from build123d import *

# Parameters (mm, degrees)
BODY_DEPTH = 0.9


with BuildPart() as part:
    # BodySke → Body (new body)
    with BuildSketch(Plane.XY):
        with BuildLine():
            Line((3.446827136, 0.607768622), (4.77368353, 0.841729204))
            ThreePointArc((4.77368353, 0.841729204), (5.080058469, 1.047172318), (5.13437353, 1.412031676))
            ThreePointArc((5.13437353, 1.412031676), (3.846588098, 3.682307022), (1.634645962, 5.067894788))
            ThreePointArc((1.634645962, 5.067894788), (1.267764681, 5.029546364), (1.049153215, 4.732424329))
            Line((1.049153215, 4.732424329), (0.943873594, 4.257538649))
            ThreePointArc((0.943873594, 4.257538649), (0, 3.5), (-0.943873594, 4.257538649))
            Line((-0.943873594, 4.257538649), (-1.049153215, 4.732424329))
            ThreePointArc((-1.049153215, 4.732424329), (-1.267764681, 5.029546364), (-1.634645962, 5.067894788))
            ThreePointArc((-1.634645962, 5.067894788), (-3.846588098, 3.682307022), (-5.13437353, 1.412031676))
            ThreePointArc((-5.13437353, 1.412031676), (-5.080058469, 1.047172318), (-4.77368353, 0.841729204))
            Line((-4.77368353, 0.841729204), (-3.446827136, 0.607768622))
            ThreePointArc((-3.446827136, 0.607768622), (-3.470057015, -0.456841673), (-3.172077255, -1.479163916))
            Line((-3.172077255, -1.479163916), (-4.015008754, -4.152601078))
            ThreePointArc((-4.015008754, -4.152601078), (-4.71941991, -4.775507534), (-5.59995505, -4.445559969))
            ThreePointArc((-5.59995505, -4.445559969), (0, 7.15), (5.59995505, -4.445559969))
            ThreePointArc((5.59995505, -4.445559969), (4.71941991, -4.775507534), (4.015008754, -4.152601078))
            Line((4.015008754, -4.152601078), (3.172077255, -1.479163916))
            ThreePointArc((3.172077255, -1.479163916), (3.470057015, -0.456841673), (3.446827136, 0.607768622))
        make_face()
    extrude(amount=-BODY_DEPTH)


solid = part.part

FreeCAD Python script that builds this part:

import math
import FreeCAD as App
import Part
import Sketcher

V = App.Vector
Q = App.Units.Quantity

doc = App.newDocument("Part")
body = doc.addObject("PartDesign::Body", "Body")

# Sketch on XY plane
sketch1 = body.newObject("Sketcher::SketchObject", "Sketch")
sketch1.AttachmentSupport = (doc.getObject("XY_Plane"), [""])
sketch1.MapMode = "FlatFace"
sketch1.addGeometry(Part.LineSegment(V(4.773684, 0.841729, 0), V(3.446827, 0.607769, 0)), False)
sketch1.addGeometry(Part.ArcOfCircle(Part.Circle(V(0, 0, 0), V(0, 0, 1), 3.5), math.radians(-25), math.radians(10)), False)
sketch1.addGeometry(Part.LineSegment(V(3.172077, -1.479164, 0), V(4.015009, -4.152601, 0)), False)
sketch1.addGeometry(Part.ArcOfCircle(Part.Circle(V(4.885275, -3.878207, 0), V(0, 0, 1), 0.9125), math.radians(-162.5), math.radians(-38.444527)), False)
sketch1.addGeometry(Part.ArcOfCircle(Part.Circle(V(0, 0, 0), V(0, 0, 1), 7.15), math.radians(-38.444527), math.radians(218.444527)), False)
sketch1.addGeometry(Part.ArcOfCircle(Part.Circle(V(-4.885275, -3.878207, 0), V(0, 0, 1), 0.9125), math.radians(-141.555473), math.radians(-17.5)), False)
sketch1.addGeometry(Part.LineSegment(V(-4.015009, -4.152601, 0), V(-3.172077, -1.479164, 0)), False)
sketch1.addGeometry(Part.ArcOfCircle(Part.Circle(V(0, 0, 0), V(0, 0, 1), 3.5), math.radians(170), math.radians(205)), False)
sketch1.addGeometry(Part.LineSegment(V(-3.446827, 0.607769, 0), V(-4.773684, 0.841729, 0)), False)
sketch1.addGeometry(Part.ArcOfCircle(Part.Circle(V(-4.694457, 1.291048, 0), V(0, 0, 1), 0.45625), math.radians(164.62293), math.radians(260)), False)
sketch1.addGeometry(Part.ArcOfCircle(Part.Circle(V(0, 0, 0), V(0, 0, 1), 5.325), math.radians(107.87707), math.radians(164.62293)), False)
sketch1.addGeometry(Part.ArcOfCircle(Part.Circle(V(-1.494588, 4.633674, 0), V(0, 0, 1), 0.45625), math.radians(12.5), math.radians(107.87707)), False)
sketch1.addGeometry(Part.LineSegment(V(-1.049153, 4.732424, 0), V(-0.943874, 4.257539, 0)), False)
sketch1.addGeometry(Part.ArcOfCircle(Part.Circle(V(0, 4.46679, 0), V(0, 0, 1), 0.96679), math.radians(-167.5), math.radians(-12.5)), False)
sketch1.addGeometry(Part.LineSegment(V(0.943874, 4.257539, 0), V(1.049153, 4.732424, 0)), False)
sketch1.addGeometry(Part.ArcOfCircle(Part.Circle(V(1.494588, 4.633674, 0), V(0, 0, 1), 0.45625), math.radians(72.12293), math.radians(167.5)), False)
sketch1.addGeometry(Part.ArcOfCircle(Part.Circle(V(0, 0, 0), V(0, 0, 1), 5.325), math.radians(15.37707), math.radians(72.12293)), False)
sketch1.addGeometry(Part.ArcOfCircle(Part.Circle(V(4.694457, 1.291048, 0), V(0, 0, 1), 0.45625), math.radians(-80), math.radians(15.37707)), False)
sketch1.addConstraint(Sketcher.Constraint("Coincident", 0, 2, 1, 2))
sketch1.addConstraint(Sketcher.Constraint("Coincident", 1, 1, 2, 1))
sketch1.addConstraint(Sketcher.Constraint("Tangent", 2, 2, 3, 1))
sketch1.addConstraint(Sketcher.Constraint("Tangent", 3, 2, 4, 1))
sketch1.addConstraint(Sketcher.Constraint("Tangent", 4, 2, 5, 1))
sketch1.addConstraint(Sketcher.Constraint("Tangent", 5, 2, 6, 1))
sketch1.addConstraint(Sketcher.Constraint("Coincident", 6, 2, 7, 2))
sketch1.addConstraint(Sketcher.Constraint("Coincident", 7, 1, 8, 1))
sketch1.addConstraint(Sketcher.Constraint("Tangent", 8, 2, 9, 2))
sketch1.addConstraint(Sketcher.Constraint("Tangent", 9, 1, 10, 2))
sketch1.addConstraint(Sketcher.Constraint("Tangent", 10, 1, 11, 2))
sketch1.addConstraint(Sketcher.Constraint("Tangent", 11, 1, 12, 1))
sketch1.addConstraint(Sketcher.Constraint("Tangent", 12, 2, 13, 1))
sketch1.addConstraint(Sketcher.Constraint("Tangent", 13, 2, 14, 1))
sketch1.addConstraint(Sketcher.Constraint("Tangent", 14, 2, 15, 2))
sketch1.addConstraint(Sketcher.Constraint("Tangent", 15, 1, 16, 2))
sketch1.addConstraint(Sketcher.Constraint("Tangent", 16, 1, 17, 2))
sketch1.addConstraint(Sketcher.Constraint("Tangent", 17, 1, 0, 1))
sketch1.addConstraint(Sketcher.Constraint("Coincident", 1, 3, -1, 1))
sketch1.addConstraint(Sketcher.Constraint("Coincident", 4, 3, -1, 1))
sketch1.addConstraint(Sketcher.Constraint("Coincident", 7, 3, -1, 1))
sketch1.addConstraint(Sketcher.Constraint("Coincident", 10, 3, -1, 1))
sketch1.addConstraint(Sketcher.Constraint("Coincident", 16, 3, -1, 1))
sketch1.addConstraint(Sketcher.Constraint("Equal", 3, 5))
sketch1.addConstraint(Sketcher.Constraint("Equal", 1, 7))
sketch1.addConstraint(Sketcher.Constraint("Equal", 9, 11))
sketch1.addConstraint(Sketcher.Constraint("Equal", 11, 15))
sketch1.addConstraint(Sketcher.Constraint("Equal", 10, 16))
sketch1.addConstraint(Sketcher.Constraint("Equal", 15, 17))
sketch1.addConstraint(Sketcher.Constraint("Symmetric", 2, 2, 5, 2, -2))
sketch1.addConstraint(Sketcher.Constraint("Symmetric", 12, 2, 13, 2, -2))
sketch1.addConstraint(Sketcher.Constraint("Symmetric", 8, 2, 17, 1, -2))
sketch1.addConstraint(Sketcher.Constraint("Radius", 1, Q("3.5 mm")))
sketch1.addConstraint(Sketcher.Constraint("Angle", 0, Q("-170 deg")))
sketch1.addConstraint(Sketcher.Constraint("Radius", 4, Q("7.15 mm")))
sketch1.addConstraint(Sketcher.Constraint("Angle", 2, Q("-72.5 deg")))
sketch1.addConstraint(Sketcher.Constraint("Angle", 12, Q("-77.5 deg")))
sketch1.addConstraint(Sketcher.Constraint("Radius", 10, Q("5.325 mm")))
sketch1.addConstraint(Sketcher.Constraint("Radius", 3, Q("0.9125 mm")))
sketch1.addConstraint(Sketcher.Constraint("Radius", 9, Q("0.45625 mm")))
sketch1.addConstraint(Sketcher.Constraint("Radius", 13, Q("0.96679 mm")))
sketch1.addConstraint(Sketcher.Constraint("DistanceY", 2, 2, -1, 1, Q("4.152601 mm")))
sketch1.addConstraint(Sketcher.Constraint("DistanceX", 17, 3, 3, 2, Q("0.905499 mm")))
sketch1.addConstraint(Sketcher.Constraint("DistanceX", 11, 3, -1, 1, Q("1.494588 mm")))
pad1 = body.newObject("PartDesign::Pad", "Pad")
pad1.Profile = sketch1
pad1.Length = 0.9
pad1.Reversed = True

doc.recompute()
